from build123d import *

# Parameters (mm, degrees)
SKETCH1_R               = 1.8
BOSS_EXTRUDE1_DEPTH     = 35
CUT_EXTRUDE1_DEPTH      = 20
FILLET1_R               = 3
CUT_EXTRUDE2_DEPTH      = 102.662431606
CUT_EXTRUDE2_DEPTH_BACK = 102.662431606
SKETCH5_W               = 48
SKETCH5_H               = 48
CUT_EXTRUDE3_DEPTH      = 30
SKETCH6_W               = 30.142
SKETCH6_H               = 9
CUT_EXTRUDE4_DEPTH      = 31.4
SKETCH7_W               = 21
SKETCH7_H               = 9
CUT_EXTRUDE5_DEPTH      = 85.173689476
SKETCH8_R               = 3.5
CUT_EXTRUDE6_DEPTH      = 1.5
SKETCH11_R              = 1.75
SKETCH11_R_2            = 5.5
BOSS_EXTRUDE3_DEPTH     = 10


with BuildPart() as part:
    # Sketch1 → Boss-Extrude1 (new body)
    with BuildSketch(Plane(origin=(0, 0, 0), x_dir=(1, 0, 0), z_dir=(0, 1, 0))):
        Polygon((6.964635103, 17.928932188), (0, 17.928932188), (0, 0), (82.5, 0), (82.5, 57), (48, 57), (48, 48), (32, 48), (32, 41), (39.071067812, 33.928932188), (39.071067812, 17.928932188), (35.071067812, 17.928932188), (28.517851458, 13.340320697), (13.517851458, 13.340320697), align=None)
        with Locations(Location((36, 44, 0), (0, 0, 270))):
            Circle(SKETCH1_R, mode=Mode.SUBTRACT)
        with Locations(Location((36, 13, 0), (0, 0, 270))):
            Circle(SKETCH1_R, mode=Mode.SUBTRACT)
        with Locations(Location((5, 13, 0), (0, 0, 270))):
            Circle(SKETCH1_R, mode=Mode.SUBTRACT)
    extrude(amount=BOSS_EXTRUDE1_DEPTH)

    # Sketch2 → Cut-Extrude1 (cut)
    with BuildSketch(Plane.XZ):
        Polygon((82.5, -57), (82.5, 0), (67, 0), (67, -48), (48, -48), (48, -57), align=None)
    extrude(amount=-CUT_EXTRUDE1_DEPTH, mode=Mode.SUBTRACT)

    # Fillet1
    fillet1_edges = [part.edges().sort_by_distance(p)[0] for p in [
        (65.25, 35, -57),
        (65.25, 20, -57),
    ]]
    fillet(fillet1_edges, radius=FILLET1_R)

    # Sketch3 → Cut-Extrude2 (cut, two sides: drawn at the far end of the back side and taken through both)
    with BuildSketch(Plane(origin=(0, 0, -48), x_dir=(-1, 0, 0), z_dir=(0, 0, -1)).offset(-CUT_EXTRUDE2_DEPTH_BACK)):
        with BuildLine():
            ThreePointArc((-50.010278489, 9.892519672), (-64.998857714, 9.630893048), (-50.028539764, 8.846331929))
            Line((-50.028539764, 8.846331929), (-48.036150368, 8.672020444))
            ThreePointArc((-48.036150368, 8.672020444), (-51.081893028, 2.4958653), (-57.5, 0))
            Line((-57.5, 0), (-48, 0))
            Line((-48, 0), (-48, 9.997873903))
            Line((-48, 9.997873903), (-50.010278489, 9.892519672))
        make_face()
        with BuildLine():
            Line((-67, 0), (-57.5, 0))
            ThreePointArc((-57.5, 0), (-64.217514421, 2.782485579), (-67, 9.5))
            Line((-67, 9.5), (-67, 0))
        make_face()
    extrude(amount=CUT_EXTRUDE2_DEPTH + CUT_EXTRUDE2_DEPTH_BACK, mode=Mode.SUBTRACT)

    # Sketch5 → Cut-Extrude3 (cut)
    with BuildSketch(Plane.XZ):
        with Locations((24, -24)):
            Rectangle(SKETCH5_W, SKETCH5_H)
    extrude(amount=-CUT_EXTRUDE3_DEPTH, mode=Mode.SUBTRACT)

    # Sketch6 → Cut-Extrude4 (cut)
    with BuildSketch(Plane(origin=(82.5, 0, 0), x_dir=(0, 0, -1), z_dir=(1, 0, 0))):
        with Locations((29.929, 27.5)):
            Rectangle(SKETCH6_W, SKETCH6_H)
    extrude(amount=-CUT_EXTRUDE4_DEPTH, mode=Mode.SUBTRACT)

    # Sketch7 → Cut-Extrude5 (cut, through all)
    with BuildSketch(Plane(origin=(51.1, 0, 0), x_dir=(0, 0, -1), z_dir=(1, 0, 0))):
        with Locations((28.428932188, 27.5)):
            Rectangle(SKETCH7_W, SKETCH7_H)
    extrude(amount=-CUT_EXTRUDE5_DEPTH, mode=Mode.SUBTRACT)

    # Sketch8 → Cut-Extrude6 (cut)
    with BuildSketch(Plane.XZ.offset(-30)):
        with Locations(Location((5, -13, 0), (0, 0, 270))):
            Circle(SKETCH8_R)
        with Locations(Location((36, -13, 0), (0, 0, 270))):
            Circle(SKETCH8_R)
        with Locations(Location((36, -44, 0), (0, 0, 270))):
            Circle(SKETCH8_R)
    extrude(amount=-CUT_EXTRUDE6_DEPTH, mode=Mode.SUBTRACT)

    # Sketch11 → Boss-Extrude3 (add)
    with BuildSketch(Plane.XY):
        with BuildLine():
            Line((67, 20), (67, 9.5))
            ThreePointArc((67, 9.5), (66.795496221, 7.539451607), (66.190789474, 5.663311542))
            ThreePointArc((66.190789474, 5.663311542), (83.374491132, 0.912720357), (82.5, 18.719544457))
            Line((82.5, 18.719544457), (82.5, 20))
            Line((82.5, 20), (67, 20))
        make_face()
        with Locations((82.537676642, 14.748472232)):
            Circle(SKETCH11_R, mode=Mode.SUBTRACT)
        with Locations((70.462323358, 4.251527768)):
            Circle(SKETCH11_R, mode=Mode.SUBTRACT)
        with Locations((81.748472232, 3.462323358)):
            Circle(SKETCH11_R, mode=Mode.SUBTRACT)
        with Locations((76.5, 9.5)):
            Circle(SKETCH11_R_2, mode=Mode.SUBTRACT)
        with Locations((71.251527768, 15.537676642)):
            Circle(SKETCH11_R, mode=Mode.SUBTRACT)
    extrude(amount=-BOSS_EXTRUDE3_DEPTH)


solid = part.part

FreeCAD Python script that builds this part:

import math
import FreeCAD as App
import Part
import Sketcher

V = App.Vector
Q = App.Units.Quantity


def edges_at(feature, points):
    """Names of the edges that pass closest to the given points."""
    edges = feature.Shape.Edges
    near = lambda p: min(range(len(edges)), key=lambda i: edges[i].distToShape(Part.Vertex(*p))[0])
    return sorted({f"Edge{near(p) + 1}" for p in points})


def add_polygon(sketch, points):
    """Adds a closed chain of lines whose ends are joined by coincident constraints."""
    first, n = sketch.GeometryCount, len(points)
    for a, b in zip(points, points[1:] + points[:1]):
        sketch.addGeometry(Part.LineSegment(App.Vector(*a, 0), App.Vector(*b, 0)), False)
    for i in range(n):
        sketch.addConstraint(Sketcher.Constraint("Coincident", first + i, 2, first + (i + 1) % n, 1))

doc = App.newDocument("Part")
body = doc.addObject("PartDesign::Body", "Body")

# Sketch on XZ plane
sketch1 = body.newObject("Sketcher::SketchObject", "Sketch")
sketch1.AttachmentSupport = (doc.getObject("XZ_Plane"), [""])
sketch1.MapMode = "FlatFace"
add_polygon(sketch1, [(6.964635, -17.928932), (0, -17.928932), (0, 0), (82.5, 0), (82.5, -57), (48, -57), (48, -48), (32, -48), (32, -41), (39.071068, -33.928932), (39.071068, -17.928932), (35.071068, -17.928932), (28.517851, -13.340321), (13.517851, -13.340321)])  # lines 0-13
sketch1.addGeometry(Part.Circle(V(5, -13, 0), V(0, 0, 1), 1.8), False)  # 14
sketch1.addGeometry(Part.Circle(V(36, -13, 0), V(0, 0, 1), 1.8), False)  # 15
sketch1.addGeometry(Part.Circle(V(36, -44, 0), V(0, 0, 1), 1.8), False)  # 16
sketch1.addConstraint([
    Sketcher.Constraint("Horizontal", 0),
    Sketcher.Constraint("Vertical", 1),
    Sketcher.Constraint("Horizontal", 2),
    Sketcher.Constraint("Vertical", 3),
    Sketcher.Constraint("Horizontal", 4),
    Sketcher.Constraint("Vertical", 5),
    Sketcher.Constraint("Horizontal", 6),
    Sketcher.Constraint("Vertical", 7),
    Sketcher.Constraint("Vertical", 9),
    Sketcher.Constraint("Horizontal", 10),
    Sketcher.Constraint("Horizontal", 12),
    Sketcher.Constraint("Coincident", 1, 2, -1, 1),
    Sketcher.Constraint("Equal", 14, 15),
    Sketcher.Constraint("Equal", 15, 16),
    Sketcher.Constraint("Horizontal", 14, 3, 15, 3),
    Sketcher.Constraint("Horizontal", 0, 2, 9, 2),
    Sketcher.Constraint("Vertical", 15, 3, 16, 3),
    Sketcher.Constraint("Equal", 6, 9),
    Sketcher.Constraint("Equal", 11, 13),
    Sketcher.Constraint("Diameter", 14, 3.6),
    Sketcher.Constraint("DistanceX", 6, 2, 6, 1, 16.0),
    Sketcher.Constraint("DistanceX", 10, 2, 10, 1, 4.0),
    Sketcher.Constraint("DistanceX", 12, 2, 12, 1, 15.0),
    Sketcher.Constraint("DistanceY", 3, 2, 3, 1, 57.0),
    Sketcher.Constraint("DistanceY", 5, 1, 5, 2, 9.0),
    Sketcher.Constraint("DistanceY", 7, 1, 7, 2, 7.0),
    Sketcher.Constraint("Angle", 8, Q("45 deg")),
    Sketcher.Constraint("Angle", 11, Q("145 deg")),
    Sketcher.Constraint("Distance", 8, 10.0),
    Sketcher.Constraint("Distance", 11, 8.0),
    Sketcher.Constraint("DistanceX", 2, 1, 2, 2, 82.5),
    Sketcher.Constraint("DistanceX", 4, 2, 4, 1, 34.5),
    Sketcher.Constraint("DistanceX", -1, 1, 14, 3, 5.0),
    Sketcher.Constraint("DistanceY", 14, 3, -1, 1, 13.0),
    Sketcher.Constraint("DistanceX", -1, 1, 15, 3, 36.0),
    Sketcher.Constraint("DistanceY", 16, 3, -1, 1, 44.0),
])
pad1 = body.newObject("PartDesign::Pad", "Pad")
pad1.Profile = sketch1
pad1.Length = 35
pad1.Reversed = True

# Sketch on XZ plane
sketch2 = body.newObject("Sketcher::SketchObject", "Sketch001")
sketch2.AttachmentSupport = (doc.getObject("XZ_Plane"), [""])
sketch2.MapMode = "FlatFace"
add_polygon(sketch2, [(82.5, -57), (82.5, 0), (67, 0), (67, -48), (48, -48), (48, -57)])  # lines 0-5
sketch2.addConstraint([
    Sketcher.Constraint("Vertical", 0),
    Sketcher.Constraint("Horizontal", 1),
    Sketcher.Constraint("Vertical", 2),
    Sketcher.Constraint("Horizontal", 3),
    Sketcher.Constraint("Vertical", 4),
    Sketcher.Constraint("Horizontal", 5),
    Sketcher.Constraint("PointOnObject", 0, 2, -1),
    Sketcher.Constraint("DistanceX", 3, 2, 3, 1, 19.0),
    Sketcher.Constraint("DistanceY", 0, 1, 0, 2, 57.0),
    Sketcher.Constraint("DistanceY", 2, 2, 2, 1, 48.0),
    Sketcher.Constraint("DistanceX", 1, 2, 1, 1, 15.5),
    Sketcher.Constraint("DistanceX", -1, 1, 1, 2, 67.0),
])
pocket1 = body.newObject("PartDesign::Pocket", "Pocket")
pocket1.Profile = sketch2
pocket1.Length = 20
doc.recompute()

fillet = body.newObject("PartDesign::Fillet", "Fillet")
fillet.Base = (pocket1, edges_at(pocket1, [(65.25, 35, -57), (65.25, 20, -57)]))
fillet.Radius = 3

# Sketch on XY plane
sketch3 = body.newObject("Sketcher::SketchObject", "Sketch002")
sketch3.AttachmentSupport = (doc.getObject("XY_Plane"), [""])
sketch3.MapMode = "FlatFace"
sketch3.AttachmentOffset = App.Placement(V(0, 0, -48), App.Rotation())
sketch3.addGeometry([
    Part.ArcOfCircle(Part.Circle(V(57.5, 9.5, 0), V(0, 0, 1), 7.5), math.radians(-175), math.radians(177)),  # 0
    Part.LineSegment(V(50.02854, 8.846332, 0), V(48.03615, 8.67202, 0)),  # 1
    Part.ArcOfCircle(Part.Circle(V(57.5, 9.5, 0), V(0, 0, 1), 9.5), math.radians(-175), math.radians(-90)),  # 2
    Part.LineSegment(V(57.5, 0, 0), V(48, 0, 0)),  # 3
    Part.LineSegment(V(48, 0, 0), V(48, 9.997874, 0)),  # 4
    Part.LineSegment(V(48, 9.997874, 0), V(50.010278, 9.89252, 0)),  # 5
    Part.LineSegment(V(67, 0, 0), V(57.5, 0, 0)),  # 6
    Part.ArcOfCircle(Part.Circle(V(57.5, 9.5, 0), V(0, 0, 1), 9.5), math.radians(-90), math.radians(0)),  # 7
    Part.LineSegment(V(67, 9.5, 0), V(67, 0, 0)),  # 8
], False)
sketch3.addConstraint([
    Sketcher.Constraint("Coincident", 0, 1, 1, 1),
    Sketcher.Constraint("Coincident", 1, 2, 2, 1),
    Sketcher.Constraint("Tangent", 2, 2, 3, 1),
    Sketcher.Constraint("Coincident", 3, 2, 4, 1),
    Sketcher.Constraint("Coincident", 4, 2, 5, 1),
    Sketcher.Constraint("Coincident", 5, 2, 0, 2),
    Sketcher.Constraint("Tangent", 6, 2, 7, 1),
    Sketcher.Constraint("Tangent", 7, 2, 8, 1),
    Sketcher.Constraint("Coincident", 8, 2, 6, 1),
    Sketcher.Constraint("Horizontal", 3),
    Sketcher.Constraint("Vertical", 4),
    Sketcher.Constraint("Horizontal", 6),
    Sketcher.Constraint("Vertical", 8),
    Sketcher.Constraint("Coincident", 2, 3, 0, 3),
    Sketcher.Constraint("Coincident", 7, 3, 0, 3),
    Sketcher.Constraint("Equal", 2, 7),
    Sketcher.Constraint("PointOnObject", 2, 2, -1),
    Sketcher.Constraint("Equal", 3, 6),
    Sketcher.Constraint("Radius", 0, 7.5),
    Sketcher.Constraint("Radius", 2, 9.5),
    Sketcher.Constraint("Angle", 1, Q("-175 deg")),
    Sketcher.Constraint("Angle", 5, Q("-3 deg")),
    Sketcher.Constraint("DistanceX", -1, 1, 3, 2, 48.0),
    Sketcher.Constraint("DistanceY", 1, 2, 5, 2, 1.220499),
    Sketcher.Constraint("DistanceY", 4, 1, 4, 2, 9.997874),
])
pocket2 = body.newObject("PartDesign::Pocket", "Pocket001")
pocket2.Profile = sketch3
pocket2.Type = "ThroughAll"
pocket2.Midplane = True

# Sketch on XZ plane
sketch4 = body.newObject("Sketcher::SketchObject", "Sketch003")
sketch4.AttachmentSupport = (doc.getObject("XZ_Plane"), [""])
sketch4.MapMode = "FlatFace"
add_polygon(sketch4, [(0, 0), (0, -48), (48, -48), (48, 0)])  # lines 0-3
sketch4.addConstraint([
    Sketcher.Constraint("Vertical", 0),
    Sketcher.Constraint("Horizontal", 1),
    Sketcher.Constraint("Vertical", 2),
    Sketcher.Constraint("Horizontal", 3),
    Sketcher.Constraint("Coincident", 3, 2, -1, 1),
    Sketcher.Constraint("Equal", 3, 0),
    Sketcher.Constraint("DistanceX", 1, 1, 1, 2, 48.0),
])
pocket3 = body.newObject("PartDesign::Pocket", "Pocket002")
pocket3.Profile = sketch4
pocket3.Length = 30

# Sketch on YZ plane
sketch5 = body.newObject("Sketcher::SketchObject", "Sketch004")
sketch5.AttachmentSupport = (doc.getObject("YZ_Plane"), [""])
sketch5.MapMode = "FlatFace"
sketch5.AttachmentOffset = App.Placement(V(0, 0, 82.5), App.Rotation())
add_polygon(sketch5, [(32, -14.858), (23, -14.858), (23, -45), (32, -45)])  # lines 0-3
sketch5.addConstraint([
    Sketcher.Constraint("Horizontal", 0),
    Sketcher.Constraint("Vertical", 1),
    Sketcher.Constraint("Horizontal", 2),
    Sketcher.Constraint("Vertical", 3),
    Sketcher.Constraint("DistanceX", 0, 2, 0, 1, 9.0),
    Sketcher.Constraint("DistanceX", -1, 1, 0, 2, 23.0),
    Sketcher.Constraint("DistanceY", 1, 2, -1, 1, 45.0),
    Sketcher.Constraint("DistanceY", 1, 2, 1, 1, 30.142),
])
pocket4 = body.newObject("PartDesign::Pocket", "Pocket003")
pocket4.Profile = sketch5
pocket4.Length = 31.4

# Sketch on YZ plane
sketch6 = body.newObject("Sketcher::SketchObject", "Sketch005")
sketch6.AttachmentSupport = (doc.getObject("YZ_Plane"), [""])
sketch6.MapMode = "FlatFace"
sketch6.AttachmentOffset = App.Placement(V(0, 0, 51.1), App.Rotation())
add_polygon(sketch6, [(32, -17.928932), (23, -17.928932), (23, -38.928932), (32, -38.928932)])  # lines 0-3
sketch6.addConstraint([
    Sketcher.Constraint("Horizontal", 0),
    Sketcher.Constraint("Vertical", 1),
    Sketcher.Constraint("Horizontal", 2),
    Sketcher.Constraint("Vertical", 3),
    Sketcher.Constraint("DistanceX", 0, 2, 0, 1, 9.0),
    Sketcher.Constraint("DistanceY", 1, 2, 1, 1, 21.0),
    Sketcher.Constraint("DistanceX", -1, 1, 0, 2, 23.0),
    Sketcher.Constraint("DistanceY", 0, 2, -1, 1, 17.928932),
])
pocket5 = body.newObject("PartDesign::Pocket", "Pocket004")
pocket5.Profile = sketch6
pocket5.Type = "ThroughAll"

# Sketch on XZ plane
sketch7 = body.newObject("Sketcher::SketchObject", "Sketch006")
sketch7.AttachmentSupport = (doc.getObject("XZ_Plane"), [""])
sketch7.MapMode = "FlatFace"
sketch7.AttachmentOffset = App.Placement(V(0, 0, -30), App.Rotation())
sketch7.addGeometry([
    Part.Circle(V(5, -13, 0), V(0, 0, 1), 3.5),
    Part.Circle(V(36, -13, 0), V(0, 0, 1), 3.5),
    Part.Circle(V(36, -44, 0), V(0, 0, 1), 3.5),
], False)
sketch7.addConstraint([
    Sketcher.Constraint("Equal", 0, 1),
    Sketcher.Constraint("Equal", 1, 2),
    Sketcher.Constraint("Horizontal", 0, 3, 1, 3),
    Sketcher.Constraint("Vertical", 1, 3, 2, 3),
    Sketcher.Constraint("Diameter", 0, 7.0),
    Sketcher.Constraint("DistanceX", -1, 1, 0, 3, 5.0),
    Sketcher.Constraint("DistanceY", 0, 3, -1, 1, 13.0),
    Sketcher.Constraint("DistanceX", -1, 1, 1, 3, 36.0),
    Sketcher.Constraint("DistanceY", 2, 3, -1, 1, 44.0),
])
pocket6 = body.newObject("PartDesign::Pocket", "Pocket005")
pocket6.Profile = sketch7
pocket6.Length = 1.5

# Sketch on XY plane
sketch8 = body.newObject("Sketcher::SketchObject", "Sketch007")
sketch8.AttachmentSupport = (doc.getObject("XY_Plane"), [""])
sketch8.MapMode = "FlatFace"
sketch8.addGeometry([
    Part.LineSegment(V(67, 20, 0), V(67, 9.5, 0)),  # 0
    Part.ArcOfCircle(Part.Circle(V(57.5, 9.5, 0), V(0, 0, 1), 9.5), math.radians(-23.81983), math.radians(0)),  # 1
    Part.ArcOfCircle(Part.Circle(V(76.5, 9.5, 0), V(0, 0, 1), 11), math.radians(-159.586685), math.radians(56.944269)),  # 2
    Part.LineSegment(V(82.5, 18.719544, 0), V(82.5, 20, 0)),  # 3
    Part.LineSegment(V(82.5, 20, 0), V(67, 20, 0)),  # 4
    Part.Circle(V(70.462323, 4.251528, 0), V(0, 0, 1), 1.75),  # 5
    Part.Circle(V(81.748472, 3.462323, 0), V(0, 0, 1), 1.75),  # 6
    Part.Circle(V(76.5, 9.5, 0), V(0, 0, 1), 5.5),  # 7
    Part.Circle(V(71.251528, 15.537677, 0), V(0, 0, 1), 1.75),  # 8
    Part.Circle(V(82.537677, 14.748472, 0), V(0, 0, 1), 1.75),  # 9
], False)
sketch8.addConstraint([
    Sketcher.Constraint("Tangent", 0, 2, 1, 2),
    Sketcher.Constraint("Coincident", 1, 1, 2, 1),
    Sketcher.Constraint("Coincident", 2, 2, 3, 1),
    Sketcher.Constraint("Coincident", 3, 2, 4, 1),
    Sketcher.Constraint("Coincident", 4, 2, 0, 1),
    Sketcher.Constraint("Vertical", 0),
    Sketcher.Constraint("Vertical", 3),
    Sketcher.Constraint("Horizontal", 4),
    Sketcher.Constraint("Coincident", 7, 3, 2, 3),
    Sketcher.Constraint("Equal", 5, 6),
    Sketcher.Constraint("Equal", 6, 8),
    Sketcher.Constraint("Equal", 8, 9),
    Sketcher.Constraint("Horizontal", 1, 3, 2, 3),
    Sketcher.Constraint("Diameter", 7, 11.0),
    Sketcher.Constraint("Radius", 2, 11.0),
    Sketcher.Constraint("Diameter", 5, 3.5),
    Sketcher.Constraint("Radius", 1, 9.5),
    Sketcher.Constraint("DistanceX", 4, 2, 4, 1, 15.5),
    Sketcher.Constraint("DistanceY", 0, 2, 0, 1, 10.5),
    Sketcher.Constraint("DistanceX", -1, 1, 0, 2, 67.0),
    Sketcher.Constraint("DistanceY", -1, 1, 3, 2, 20.0),
    Sketcher.Constraint("DistanceX", 1, 3, 2, 3, 19.0),
    Sketcher.Constraint("DistanceX", 5, 3, 6, 3, 11.286149),
    Sketcher.Constraint("DistanceY", 5, 3, 8, 3, 11.286149),
    Sketcher.Constraint("DistanceX", 8, 3, 9, 3, 11.286149),
    Sketcher.Constraint("DistanceY", 6, 3, 9, 3, 11.286149),
    Sketcher.Constraint("DistanceY", 6, 3, 2, 2, 15.257221),
    Sketcher.Constraint("DistanceX", -1, 1, 5, 3, 70.462323),
    Sketcher.Constraint("DistanceY", -1, 1, 5, 3, 4.251528),
    Sketcher.Constraint("DistanceX", -1, 1, 8, 3, 71.251528),
])
pad2 = body.newObject("PartDesign::Pad", "Pad001")
pad2.Profile = sketch8
pad2.Length = 10
pad2.Reversed = True

doc.recompute()
